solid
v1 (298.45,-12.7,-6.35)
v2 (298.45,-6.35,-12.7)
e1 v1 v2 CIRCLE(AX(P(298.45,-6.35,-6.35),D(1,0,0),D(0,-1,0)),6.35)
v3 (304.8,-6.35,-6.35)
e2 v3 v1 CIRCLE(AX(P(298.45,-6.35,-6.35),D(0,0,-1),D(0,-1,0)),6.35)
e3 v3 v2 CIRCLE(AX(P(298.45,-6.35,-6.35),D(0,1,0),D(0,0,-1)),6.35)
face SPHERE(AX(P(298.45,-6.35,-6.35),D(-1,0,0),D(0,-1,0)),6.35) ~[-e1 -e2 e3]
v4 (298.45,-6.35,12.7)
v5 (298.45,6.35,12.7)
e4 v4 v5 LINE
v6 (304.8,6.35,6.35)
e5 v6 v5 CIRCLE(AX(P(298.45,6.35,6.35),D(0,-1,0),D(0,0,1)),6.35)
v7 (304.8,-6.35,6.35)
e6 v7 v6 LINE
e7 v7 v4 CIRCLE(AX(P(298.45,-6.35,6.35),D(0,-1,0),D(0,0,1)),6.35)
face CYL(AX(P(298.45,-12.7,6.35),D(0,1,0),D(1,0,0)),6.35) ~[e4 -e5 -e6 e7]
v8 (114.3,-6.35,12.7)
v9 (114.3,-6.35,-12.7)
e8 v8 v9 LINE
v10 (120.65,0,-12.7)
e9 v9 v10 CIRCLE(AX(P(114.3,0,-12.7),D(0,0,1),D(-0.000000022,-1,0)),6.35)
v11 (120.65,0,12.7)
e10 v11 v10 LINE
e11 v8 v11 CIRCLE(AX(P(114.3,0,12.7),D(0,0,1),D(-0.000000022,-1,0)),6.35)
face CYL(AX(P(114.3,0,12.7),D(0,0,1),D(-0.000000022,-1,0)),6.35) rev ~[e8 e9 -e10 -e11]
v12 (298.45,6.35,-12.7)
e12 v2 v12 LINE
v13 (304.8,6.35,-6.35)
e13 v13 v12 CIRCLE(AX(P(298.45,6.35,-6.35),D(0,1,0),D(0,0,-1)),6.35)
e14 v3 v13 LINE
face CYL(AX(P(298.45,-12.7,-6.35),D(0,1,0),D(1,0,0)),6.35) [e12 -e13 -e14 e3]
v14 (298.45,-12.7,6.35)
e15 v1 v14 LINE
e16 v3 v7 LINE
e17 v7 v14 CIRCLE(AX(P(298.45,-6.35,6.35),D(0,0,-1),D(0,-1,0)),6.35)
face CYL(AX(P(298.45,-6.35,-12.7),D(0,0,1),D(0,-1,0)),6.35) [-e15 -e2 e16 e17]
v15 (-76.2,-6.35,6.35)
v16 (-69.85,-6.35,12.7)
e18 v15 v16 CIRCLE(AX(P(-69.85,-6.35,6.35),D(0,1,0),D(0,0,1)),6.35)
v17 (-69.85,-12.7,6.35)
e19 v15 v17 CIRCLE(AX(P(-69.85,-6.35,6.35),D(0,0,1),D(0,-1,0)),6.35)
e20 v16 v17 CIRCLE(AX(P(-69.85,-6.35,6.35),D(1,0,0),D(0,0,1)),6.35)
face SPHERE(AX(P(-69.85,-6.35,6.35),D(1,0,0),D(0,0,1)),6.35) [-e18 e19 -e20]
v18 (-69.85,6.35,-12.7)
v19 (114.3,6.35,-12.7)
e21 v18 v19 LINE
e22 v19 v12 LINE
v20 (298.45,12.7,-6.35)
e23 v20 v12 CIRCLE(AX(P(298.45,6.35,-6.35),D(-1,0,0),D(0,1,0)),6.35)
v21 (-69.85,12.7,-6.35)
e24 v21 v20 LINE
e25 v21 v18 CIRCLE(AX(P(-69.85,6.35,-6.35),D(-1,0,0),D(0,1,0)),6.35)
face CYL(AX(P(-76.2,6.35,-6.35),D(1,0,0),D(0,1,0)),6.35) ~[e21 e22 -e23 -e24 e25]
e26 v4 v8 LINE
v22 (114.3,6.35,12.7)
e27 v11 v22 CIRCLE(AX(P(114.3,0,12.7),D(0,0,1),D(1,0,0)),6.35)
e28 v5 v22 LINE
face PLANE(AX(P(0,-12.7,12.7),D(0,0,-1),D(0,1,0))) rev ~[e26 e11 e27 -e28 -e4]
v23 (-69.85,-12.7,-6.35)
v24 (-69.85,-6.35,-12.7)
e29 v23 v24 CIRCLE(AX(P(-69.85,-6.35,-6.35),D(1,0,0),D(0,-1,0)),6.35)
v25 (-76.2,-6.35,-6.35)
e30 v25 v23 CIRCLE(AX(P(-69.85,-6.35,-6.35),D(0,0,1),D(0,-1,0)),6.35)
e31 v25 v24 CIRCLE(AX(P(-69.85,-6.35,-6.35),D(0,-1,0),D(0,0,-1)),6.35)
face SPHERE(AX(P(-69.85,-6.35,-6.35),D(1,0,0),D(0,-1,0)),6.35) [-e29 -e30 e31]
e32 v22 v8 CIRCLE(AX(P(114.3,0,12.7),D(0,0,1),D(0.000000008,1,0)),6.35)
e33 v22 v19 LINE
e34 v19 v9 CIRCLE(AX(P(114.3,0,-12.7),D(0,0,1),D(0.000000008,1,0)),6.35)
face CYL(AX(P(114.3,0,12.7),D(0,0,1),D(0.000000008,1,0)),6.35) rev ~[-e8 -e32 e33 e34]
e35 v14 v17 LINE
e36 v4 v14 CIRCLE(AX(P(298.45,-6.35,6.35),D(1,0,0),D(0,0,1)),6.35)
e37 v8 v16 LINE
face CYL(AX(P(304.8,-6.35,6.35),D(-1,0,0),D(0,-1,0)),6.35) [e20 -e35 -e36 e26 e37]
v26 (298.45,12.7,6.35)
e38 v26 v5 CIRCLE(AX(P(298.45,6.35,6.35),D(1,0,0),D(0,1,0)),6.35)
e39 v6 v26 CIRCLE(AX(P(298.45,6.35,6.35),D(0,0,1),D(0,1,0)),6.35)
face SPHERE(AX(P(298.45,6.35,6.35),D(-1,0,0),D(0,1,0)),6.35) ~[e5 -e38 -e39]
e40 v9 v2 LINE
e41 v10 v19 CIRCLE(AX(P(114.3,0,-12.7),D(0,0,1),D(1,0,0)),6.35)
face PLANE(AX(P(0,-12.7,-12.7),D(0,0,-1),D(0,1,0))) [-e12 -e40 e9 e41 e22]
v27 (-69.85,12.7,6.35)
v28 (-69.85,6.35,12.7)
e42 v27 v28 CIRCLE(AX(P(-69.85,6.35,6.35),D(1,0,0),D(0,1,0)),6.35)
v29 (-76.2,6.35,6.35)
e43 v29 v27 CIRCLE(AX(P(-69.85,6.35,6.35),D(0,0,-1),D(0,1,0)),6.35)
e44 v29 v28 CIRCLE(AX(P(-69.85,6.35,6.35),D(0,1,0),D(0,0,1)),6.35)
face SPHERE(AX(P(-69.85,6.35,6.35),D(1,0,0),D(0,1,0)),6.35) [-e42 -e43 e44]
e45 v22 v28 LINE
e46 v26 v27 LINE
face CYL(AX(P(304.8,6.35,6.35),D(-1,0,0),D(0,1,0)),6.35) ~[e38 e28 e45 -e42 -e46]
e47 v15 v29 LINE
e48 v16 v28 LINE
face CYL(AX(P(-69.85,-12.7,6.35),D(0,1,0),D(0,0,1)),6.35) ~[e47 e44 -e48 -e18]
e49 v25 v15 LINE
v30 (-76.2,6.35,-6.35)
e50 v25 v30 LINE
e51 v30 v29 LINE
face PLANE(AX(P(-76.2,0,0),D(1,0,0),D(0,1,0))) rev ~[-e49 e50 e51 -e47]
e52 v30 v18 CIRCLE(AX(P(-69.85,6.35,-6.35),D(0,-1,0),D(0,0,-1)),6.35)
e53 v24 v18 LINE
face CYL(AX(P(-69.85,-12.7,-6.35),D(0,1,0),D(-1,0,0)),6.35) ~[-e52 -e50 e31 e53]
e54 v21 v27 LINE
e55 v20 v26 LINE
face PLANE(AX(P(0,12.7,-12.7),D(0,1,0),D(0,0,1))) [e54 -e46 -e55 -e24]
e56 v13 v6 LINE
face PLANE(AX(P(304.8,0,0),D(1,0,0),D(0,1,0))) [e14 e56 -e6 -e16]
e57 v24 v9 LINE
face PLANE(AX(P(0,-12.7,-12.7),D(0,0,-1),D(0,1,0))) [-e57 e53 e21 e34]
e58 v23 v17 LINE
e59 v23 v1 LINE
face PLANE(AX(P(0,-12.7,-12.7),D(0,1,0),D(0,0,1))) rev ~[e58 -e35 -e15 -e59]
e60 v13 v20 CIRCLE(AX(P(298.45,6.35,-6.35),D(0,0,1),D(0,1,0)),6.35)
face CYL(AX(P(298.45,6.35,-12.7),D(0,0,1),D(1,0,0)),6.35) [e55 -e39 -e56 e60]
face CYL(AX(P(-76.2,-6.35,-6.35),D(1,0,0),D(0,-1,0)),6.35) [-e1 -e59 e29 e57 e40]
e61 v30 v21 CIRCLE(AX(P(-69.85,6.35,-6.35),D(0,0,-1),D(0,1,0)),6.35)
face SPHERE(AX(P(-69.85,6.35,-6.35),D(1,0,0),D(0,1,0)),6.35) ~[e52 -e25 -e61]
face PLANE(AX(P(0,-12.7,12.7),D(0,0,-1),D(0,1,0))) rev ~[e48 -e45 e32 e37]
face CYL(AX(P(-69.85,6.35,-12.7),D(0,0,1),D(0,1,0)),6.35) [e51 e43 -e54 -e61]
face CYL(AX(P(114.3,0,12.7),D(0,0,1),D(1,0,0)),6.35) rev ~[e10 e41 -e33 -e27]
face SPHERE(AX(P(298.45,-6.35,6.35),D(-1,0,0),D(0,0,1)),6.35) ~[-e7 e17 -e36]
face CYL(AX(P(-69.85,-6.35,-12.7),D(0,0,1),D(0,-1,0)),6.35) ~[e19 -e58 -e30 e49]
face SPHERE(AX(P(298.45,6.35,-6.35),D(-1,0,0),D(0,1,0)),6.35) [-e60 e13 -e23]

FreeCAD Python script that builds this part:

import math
import FreeCAD as App
import Part
import Sketcher

V = App.Vector
Q = App.Units.Quantity

doc = App.newDocument("Part")
body = doc.addObject("PartDesign::Body", "Body")

# Sketch on YZ plane
sketch1 = doc.addObject("Sketcher::SketchObject", "Sketch")
body.addObject(sketch1)
sketch1.AttachmentSupport = (doc.YZ_Plane, [""])
sketch1.MapMode = "FlatFace"
sketch1.addGeometry([
    Part.LineSegment(V(-13, 13, 0), V(-13, -13, 0)),
    Part.LineSegment(V(-13, -13, 0), V(13, -13, 0)),
    Part.LineSegment(V(13, -13, 0), V(13, 13, 0)),
    Part.LineSegment(V(13, 13, 0), V(-13, 13, 0)),
], False)
sketch1.addConstraint([
    Sketcher.Constraint("Coincident", 0, 2, 1, 1),
    Sketcher.Constraint("Coincident", 1, 2, 2, 1),
    Sketcher.Constraint("Coincident", 2, 2, 3, 1),
    Sketcher.Constraint("Coincident", 3, 2, 0, 1),
    Sketcher.Constraint("Vertical", 0),
    Sketcher.Constraint("Horizontal", 1),
    Sketcher.Constraint("Vertical", 2),
    Sketcher.Constraint("Horizontal", 3),
    Sketcher.Constraint("Symmetric", 0, 2, 2, 2, -1, 1),
    Sketcher.Constraint("Equal", 3, 0),
    Sketcher.Constraint("DistanceX", 1, 1, 1, 2, Q("1 in")),
])
pad1 = doc.addObject("PartDesign::Pad", "Pad")
body.addObject(pad1)
pad1.Profile = sketch1
pad1.Type = "TwoLengths"
pad1.Length = Q("12 in")
pad1.Length2 = Q("3 in")
doc.recompute()

fillet = doc.addObject("PartDesign::Fillet", "Fillet")
body.addObject(fillet)
fillet.Base = (pad1, ["Edge1"])
fillet.UseAllEdges = True
fillet.Radius = Q("0.25 in")

# Sketch on XY plane
sketch2 = doc.addObject("Sketcher::SketchObject", "Sketch001")
body.addObject(sketch2)
sketch2.AttachmentSupport = (doc.XY_Plane, [""])
sketch2.MapMode = "FlatFace"
sketch2.AttachmentOffset = App.Placement(V(0, 0, 0.5 * 25.4), App.Rotation())
sketch2.addGeometry([
    Part.ArcOfCircle(Part.Circle(V(114, 0, 0), V(0, 0, 1), 6), math.radians(-90), math.radians(0)),
    Part.ArcOfCircle(Part.Circle(V(114, 0, 0), V(0, 0, 1), 6), math.radians(0), math.radians(90)),
    Part.ArcOfCircle(Part.Circle(V(114, 0, 0), V(0, 0, 1), 6), math.radians(90), math.radians(270)),
], False)
sketch2.addConstraint([
    Sketcher.Constraint("Tangent", 0, 2, 1, 1),
    Sketcher.Constraint("Tangent", 1, 2, 2, 1),
    Sketcher.Constraint("Tangent", 2, 2, 0, 1),
    Sketcher.Constraint("Symmetric", 1, 2, 2, 2, -1),
    Sketcher.Constraint("PointOnObject", 0, 2, -1),
    Sketcher.Constraint("Vertical", 2, 3, 1, 2),
    Sketcher.Constraint("Radius", 0, Q("0.25 in")),
    Sketcher.Constraint("DistanceX", -1, 1, 0, 3, Q("4.5 in")),
])
pocket1 = doc.addObject("PartDesign::Pocket", "Pocket")
body.addObject(pocket1)
pocket1.Profile = sketch2
pocket1.Type = "ThroughAll"

doc.recompute()
